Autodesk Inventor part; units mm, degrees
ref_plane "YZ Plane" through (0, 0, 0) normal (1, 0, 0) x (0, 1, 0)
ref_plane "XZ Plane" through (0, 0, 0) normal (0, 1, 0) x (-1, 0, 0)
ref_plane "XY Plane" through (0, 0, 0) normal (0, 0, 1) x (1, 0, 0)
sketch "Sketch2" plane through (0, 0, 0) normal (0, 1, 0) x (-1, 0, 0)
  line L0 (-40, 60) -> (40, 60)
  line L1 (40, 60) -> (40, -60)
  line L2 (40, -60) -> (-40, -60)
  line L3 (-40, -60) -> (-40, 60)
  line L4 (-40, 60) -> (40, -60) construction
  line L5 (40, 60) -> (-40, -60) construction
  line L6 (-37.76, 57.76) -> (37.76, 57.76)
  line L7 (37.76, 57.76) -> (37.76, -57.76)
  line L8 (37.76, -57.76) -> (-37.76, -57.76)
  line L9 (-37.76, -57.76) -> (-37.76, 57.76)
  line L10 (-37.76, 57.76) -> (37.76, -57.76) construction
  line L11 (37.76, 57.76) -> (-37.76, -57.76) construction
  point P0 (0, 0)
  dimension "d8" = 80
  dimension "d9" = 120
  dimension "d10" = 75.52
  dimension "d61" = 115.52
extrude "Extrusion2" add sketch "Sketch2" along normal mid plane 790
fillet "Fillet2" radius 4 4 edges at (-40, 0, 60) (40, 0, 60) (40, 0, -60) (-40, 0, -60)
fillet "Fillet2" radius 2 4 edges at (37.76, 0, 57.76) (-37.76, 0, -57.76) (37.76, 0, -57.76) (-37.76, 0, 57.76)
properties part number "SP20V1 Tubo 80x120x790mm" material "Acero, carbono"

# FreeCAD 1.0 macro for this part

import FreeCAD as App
import Part
import Sketcher
Q = App.Units.Quantity


def edges_at(feature, points):
    """Names of the edges that pass closest to the given points."""
    edges = feature.Shape.Edges
    near = lambda p: min(range(len(edges)), key=lambda i: edges[i].distToShape(Part.Vertex(*p))[0])
    return sorted({f"Edge{near(p) + 1}" for p in points})


def add_polygon(sketch, points):
    """Adds a closed chain of lines whose ends are joined by coincident constraints."""
    first, n = sketch.GeometryCount, len(points)
    for a, b in zip(points, points[1:] + points[:1]):
        sketch.addGeometry(Part.LineSegment(App.Vector(*a, 0), App.Vector(*b, 0)), False)
    for i in range(n):
        sketch.addConstraint(Sketcher.Constraint("Coincident", first + i, 2, first + (i + 1) % n, 1))

doc = App.newDocument("Part")
params = doc.addObject("Spreadsheet::Sheet", "Params")
for row, (alias, value) in enumerate([
    ("sketch1_width", "80 mm"),
    ("sketch1_height", "120 mm"),
    ("sketch1_width2", "75.52 mm"),
    ("sketch1_height2", "115.52 mm"),
    ("pad1_length", "790 mm"),
    ("fillet_radius", "4 mm"),
    ("fillet2_radius", "2 mm"),
], start=1):
    params.set(f"A{row}", alias)
    params.set(f"B{row}", "=" + value)
    params.setAlias(f"B{row}", alias)

body = doc.addObject("PartDesign::Body", "Body")

# Sketch on XZ plane
sketch1 = body.newObject("Sketcher::SketchObject", "Sketch")
sketch1.AttachmentSupport = (doc.getObject("XZ_Plane"), [""])
sketch1.MapMode = "FlatFace"
add_polygon(sketch1, [(-40, 60), (40, 60), (40, -60), (-40, -60)])  # lines 0-3
add_polygon(sketch1, [(38, -58), (38, 58), (-38, 58), (-38, -58)])  # lines 4-7
sketch1.addConstraint([
    Sketcher.Constraint("Horizontal", 0),
    Sketcher.Constraint("Vertical", 1),
    Sketcher.Constraint("Horizontal", 2),
    Sketcher.Constraint("Vertical", 3),
    Sketcher.Constraint("Vertical", 4),
    Sketcher.Constraint("Horizontal", 5),
    Sketcher.Constraint("Vertical", 6),
    Sketcher.Constraint("Horizontal", 7),
    Sketcher.Constraint("Symmetric", 0, 2, 2, 2, -1, 1),
    Sketcher.Constraint("Symmetric", 4, 2, 6, 2, -1, 1),
    Sketcher.Constraint("DistanceX", 0, 1, 0, 2, Q("80 mm")),
    Sketcher.Constraint("DistanceY", 1, 2, 1, 1, Q("120 mm")),
    Sketcher.Constraint("DistanceX", 5, 2, 5, 1, Q("75.52 mm")),
    Sketcher.Constraint("DistanceY", 4, 1, 4, 2, Q("115.52 mm")),
])
sketch1.setExpression("Constraints[18]", "Params.sketch1_width")
sketch1.setExpression("Constraints[19]", "Params.sketch1_height")
sketch1.setExpression("Constraints[20]", "Params.sketch1_width2")
sketch1.setExpression("Constraints[21]", "Params.sketch1_height2")
pad1 = body.newObject("PartDesign::Pad", "Pad")
pad1.Profile = sketch1
pad1.setExpression("Length", "Params.pad1_length")
pad1.Midplane = True
doc.recompute()

fillet = body.newObject("PartDesign::Fillet", "Fillet")
fillet.Base = (pad1, edges_at(pad1, [
    (-40, 0, 60),
    (40, 0, 60),
    (40, 0, -60),
    (-40, 0, -60),
]))
fillet.setExpression("Radius", "Params.fillet_radius")
doc.recompute()

fillet2 = body.newObject("PartDesign::Fillet", "Fillet001")
fillet2.Base = (fillet, edges_at(fillet, [
    (37.76, 0, 57.76),
    (-37.76, 0, -57.76),
    (37.76, 0, -57.76),
    (-37.76, 0, 57.76),
]))
fillet2.setExpression("Radius", "Params.fillet2_radius")

doc.recompute()
